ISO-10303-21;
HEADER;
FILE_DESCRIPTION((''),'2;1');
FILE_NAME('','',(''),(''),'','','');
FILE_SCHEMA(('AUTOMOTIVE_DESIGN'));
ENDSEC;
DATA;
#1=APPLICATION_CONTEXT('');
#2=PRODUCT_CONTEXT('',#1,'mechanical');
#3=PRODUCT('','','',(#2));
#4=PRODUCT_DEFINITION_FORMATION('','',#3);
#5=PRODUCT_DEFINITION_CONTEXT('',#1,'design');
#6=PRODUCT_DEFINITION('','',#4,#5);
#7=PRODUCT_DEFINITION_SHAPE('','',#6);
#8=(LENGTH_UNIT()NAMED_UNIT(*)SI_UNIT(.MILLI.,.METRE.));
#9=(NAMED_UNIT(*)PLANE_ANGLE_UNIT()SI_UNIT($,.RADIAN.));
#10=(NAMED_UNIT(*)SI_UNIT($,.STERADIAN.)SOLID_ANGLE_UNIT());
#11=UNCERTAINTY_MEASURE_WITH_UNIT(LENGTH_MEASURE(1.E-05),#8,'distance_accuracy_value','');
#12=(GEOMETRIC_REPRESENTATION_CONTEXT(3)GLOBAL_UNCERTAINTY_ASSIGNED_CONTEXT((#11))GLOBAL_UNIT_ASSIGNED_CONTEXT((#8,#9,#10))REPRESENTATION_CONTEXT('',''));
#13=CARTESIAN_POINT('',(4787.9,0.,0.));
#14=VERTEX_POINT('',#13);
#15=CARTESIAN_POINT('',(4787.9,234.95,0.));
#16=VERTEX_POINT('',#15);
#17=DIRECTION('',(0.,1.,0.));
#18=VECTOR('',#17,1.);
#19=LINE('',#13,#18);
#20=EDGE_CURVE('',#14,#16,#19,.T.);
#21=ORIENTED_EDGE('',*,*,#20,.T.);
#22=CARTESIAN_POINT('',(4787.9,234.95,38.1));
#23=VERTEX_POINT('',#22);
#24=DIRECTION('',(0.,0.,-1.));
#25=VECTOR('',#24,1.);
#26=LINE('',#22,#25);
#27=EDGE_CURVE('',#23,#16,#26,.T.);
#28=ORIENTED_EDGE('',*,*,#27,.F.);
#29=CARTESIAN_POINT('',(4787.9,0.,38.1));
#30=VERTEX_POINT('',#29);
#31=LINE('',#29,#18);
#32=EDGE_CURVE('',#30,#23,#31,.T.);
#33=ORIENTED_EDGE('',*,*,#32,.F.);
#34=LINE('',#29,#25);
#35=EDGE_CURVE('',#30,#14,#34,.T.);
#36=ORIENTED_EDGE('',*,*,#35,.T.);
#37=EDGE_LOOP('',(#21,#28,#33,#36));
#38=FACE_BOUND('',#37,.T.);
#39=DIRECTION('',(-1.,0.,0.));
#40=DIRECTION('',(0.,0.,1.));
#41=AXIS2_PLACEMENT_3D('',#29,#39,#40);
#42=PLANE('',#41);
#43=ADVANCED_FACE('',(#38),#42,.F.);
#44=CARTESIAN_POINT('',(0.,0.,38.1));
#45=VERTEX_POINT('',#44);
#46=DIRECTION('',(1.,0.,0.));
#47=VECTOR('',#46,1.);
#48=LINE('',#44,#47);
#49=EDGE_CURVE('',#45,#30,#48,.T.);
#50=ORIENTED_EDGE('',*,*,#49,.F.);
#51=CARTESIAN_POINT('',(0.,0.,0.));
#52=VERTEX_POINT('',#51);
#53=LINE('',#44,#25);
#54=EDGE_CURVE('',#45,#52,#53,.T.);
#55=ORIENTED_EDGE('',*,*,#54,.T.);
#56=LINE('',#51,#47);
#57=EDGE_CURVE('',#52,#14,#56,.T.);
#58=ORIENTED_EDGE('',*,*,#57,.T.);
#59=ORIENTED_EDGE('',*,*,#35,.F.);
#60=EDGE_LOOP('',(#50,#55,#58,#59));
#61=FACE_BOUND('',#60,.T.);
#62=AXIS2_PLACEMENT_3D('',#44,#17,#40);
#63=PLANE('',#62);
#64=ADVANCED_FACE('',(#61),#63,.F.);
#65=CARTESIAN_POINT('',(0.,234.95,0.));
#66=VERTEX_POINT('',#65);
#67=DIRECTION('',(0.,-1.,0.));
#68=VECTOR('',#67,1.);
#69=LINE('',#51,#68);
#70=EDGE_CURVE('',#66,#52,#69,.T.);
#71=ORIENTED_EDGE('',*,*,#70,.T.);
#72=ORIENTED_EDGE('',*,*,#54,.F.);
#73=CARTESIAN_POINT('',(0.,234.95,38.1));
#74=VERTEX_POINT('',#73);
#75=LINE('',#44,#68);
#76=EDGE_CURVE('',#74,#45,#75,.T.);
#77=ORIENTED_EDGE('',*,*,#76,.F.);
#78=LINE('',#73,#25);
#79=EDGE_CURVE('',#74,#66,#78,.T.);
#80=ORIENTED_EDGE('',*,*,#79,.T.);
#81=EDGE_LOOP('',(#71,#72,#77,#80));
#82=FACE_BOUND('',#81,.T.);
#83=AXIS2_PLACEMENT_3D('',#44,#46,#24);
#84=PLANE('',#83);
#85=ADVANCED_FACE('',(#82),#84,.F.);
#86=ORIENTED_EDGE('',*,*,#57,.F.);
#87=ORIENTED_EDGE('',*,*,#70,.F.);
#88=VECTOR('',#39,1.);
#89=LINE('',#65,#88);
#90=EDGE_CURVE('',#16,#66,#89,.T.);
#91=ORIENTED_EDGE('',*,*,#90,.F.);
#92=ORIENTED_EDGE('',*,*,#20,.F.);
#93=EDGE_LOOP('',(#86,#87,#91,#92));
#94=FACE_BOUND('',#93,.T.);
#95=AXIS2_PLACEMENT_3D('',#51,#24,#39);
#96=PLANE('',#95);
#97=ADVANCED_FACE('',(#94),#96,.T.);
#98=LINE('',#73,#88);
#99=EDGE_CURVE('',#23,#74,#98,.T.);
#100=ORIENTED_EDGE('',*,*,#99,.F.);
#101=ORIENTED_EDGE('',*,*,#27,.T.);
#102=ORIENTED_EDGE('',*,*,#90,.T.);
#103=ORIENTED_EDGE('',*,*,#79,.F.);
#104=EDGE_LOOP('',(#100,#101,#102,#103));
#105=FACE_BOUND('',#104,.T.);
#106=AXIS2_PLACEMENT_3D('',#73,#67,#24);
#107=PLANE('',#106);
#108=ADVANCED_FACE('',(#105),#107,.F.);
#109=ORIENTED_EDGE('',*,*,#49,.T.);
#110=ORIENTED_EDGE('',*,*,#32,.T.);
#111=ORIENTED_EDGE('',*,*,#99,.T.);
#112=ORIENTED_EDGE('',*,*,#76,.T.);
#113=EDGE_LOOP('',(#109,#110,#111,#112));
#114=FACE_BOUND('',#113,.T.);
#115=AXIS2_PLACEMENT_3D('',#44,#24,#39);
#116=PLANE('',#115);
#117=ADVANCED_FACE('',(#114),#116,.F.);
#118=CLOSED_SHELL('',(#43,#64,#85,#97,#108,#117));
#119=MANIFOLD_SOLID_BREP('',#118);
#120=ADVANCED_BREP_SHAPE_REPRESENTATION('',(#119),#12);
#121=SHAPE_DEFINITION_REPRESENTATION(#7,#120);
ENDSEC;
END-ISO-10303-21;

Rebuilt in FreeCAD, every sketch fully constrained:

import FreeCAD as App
import Part
import Sketcher
from FreeCAD import Vector
Q = App.Units.Quantity

doc = App.newDocument("Part")
body = doc.addObject("PartDesign::Body", "Body")

sketch1 = body.newObject("Sketcher::SketchObject", "Sketch")
sketch1.AttachmentSupport = (doc.getObject("XY_Plane"), [""])
sketch1.MapMode = "FlatFace"
sketch1.addGeometry([
    Part.LineSegment(Vector(0, 235, 0), Vector(0, 0, 0)),
    Part.LineSegment(Vector(0, 0, 0), Vector(4788, 0, 0)),
    Part.LineSegment(Vector(4788, 0, 0), Vector(4788, 235, 0)),
    Part.LineSegment(Vector(4788, 235, 0), Vector(0, 235, 0)),
], False)
sketch1.addConstraint([
    Sketcher.Constraint("Coincident", 0, 2, 1, 1),
    Sketcher.Constraint("Coincident", 1, 2, 2, 1),
    Sketcher.Constraint("Coincident", 2, 2, 3, 1),
    Sketcher.Constraint("Coincident", 3, 2, 0, 1),
    Sketcher.Constraint("Vertical", 0),
    Sketcher.Constraint("Horizontal", 1),
    Sketcher.Constraint("Vertical", 2),
    Sketcher.Constraint("Horizontal", 3),
    Sketcher.Constraint("Coincident", 0, 2, -1, 1),
    Sketcher.Constraint("DistanceX", 1, 1, 1, 2, Q("188.5 in")),
    Sketcher.Constraint("DistanceY", 0, 2, 0, 1, Q("9.25 in")),
])
pad1 = body.newObject("PartDesign::Pad", "Pad")
pad1.Profile = sketch1
pad1.Length = Q("1.5 in")

doc.recompute()
